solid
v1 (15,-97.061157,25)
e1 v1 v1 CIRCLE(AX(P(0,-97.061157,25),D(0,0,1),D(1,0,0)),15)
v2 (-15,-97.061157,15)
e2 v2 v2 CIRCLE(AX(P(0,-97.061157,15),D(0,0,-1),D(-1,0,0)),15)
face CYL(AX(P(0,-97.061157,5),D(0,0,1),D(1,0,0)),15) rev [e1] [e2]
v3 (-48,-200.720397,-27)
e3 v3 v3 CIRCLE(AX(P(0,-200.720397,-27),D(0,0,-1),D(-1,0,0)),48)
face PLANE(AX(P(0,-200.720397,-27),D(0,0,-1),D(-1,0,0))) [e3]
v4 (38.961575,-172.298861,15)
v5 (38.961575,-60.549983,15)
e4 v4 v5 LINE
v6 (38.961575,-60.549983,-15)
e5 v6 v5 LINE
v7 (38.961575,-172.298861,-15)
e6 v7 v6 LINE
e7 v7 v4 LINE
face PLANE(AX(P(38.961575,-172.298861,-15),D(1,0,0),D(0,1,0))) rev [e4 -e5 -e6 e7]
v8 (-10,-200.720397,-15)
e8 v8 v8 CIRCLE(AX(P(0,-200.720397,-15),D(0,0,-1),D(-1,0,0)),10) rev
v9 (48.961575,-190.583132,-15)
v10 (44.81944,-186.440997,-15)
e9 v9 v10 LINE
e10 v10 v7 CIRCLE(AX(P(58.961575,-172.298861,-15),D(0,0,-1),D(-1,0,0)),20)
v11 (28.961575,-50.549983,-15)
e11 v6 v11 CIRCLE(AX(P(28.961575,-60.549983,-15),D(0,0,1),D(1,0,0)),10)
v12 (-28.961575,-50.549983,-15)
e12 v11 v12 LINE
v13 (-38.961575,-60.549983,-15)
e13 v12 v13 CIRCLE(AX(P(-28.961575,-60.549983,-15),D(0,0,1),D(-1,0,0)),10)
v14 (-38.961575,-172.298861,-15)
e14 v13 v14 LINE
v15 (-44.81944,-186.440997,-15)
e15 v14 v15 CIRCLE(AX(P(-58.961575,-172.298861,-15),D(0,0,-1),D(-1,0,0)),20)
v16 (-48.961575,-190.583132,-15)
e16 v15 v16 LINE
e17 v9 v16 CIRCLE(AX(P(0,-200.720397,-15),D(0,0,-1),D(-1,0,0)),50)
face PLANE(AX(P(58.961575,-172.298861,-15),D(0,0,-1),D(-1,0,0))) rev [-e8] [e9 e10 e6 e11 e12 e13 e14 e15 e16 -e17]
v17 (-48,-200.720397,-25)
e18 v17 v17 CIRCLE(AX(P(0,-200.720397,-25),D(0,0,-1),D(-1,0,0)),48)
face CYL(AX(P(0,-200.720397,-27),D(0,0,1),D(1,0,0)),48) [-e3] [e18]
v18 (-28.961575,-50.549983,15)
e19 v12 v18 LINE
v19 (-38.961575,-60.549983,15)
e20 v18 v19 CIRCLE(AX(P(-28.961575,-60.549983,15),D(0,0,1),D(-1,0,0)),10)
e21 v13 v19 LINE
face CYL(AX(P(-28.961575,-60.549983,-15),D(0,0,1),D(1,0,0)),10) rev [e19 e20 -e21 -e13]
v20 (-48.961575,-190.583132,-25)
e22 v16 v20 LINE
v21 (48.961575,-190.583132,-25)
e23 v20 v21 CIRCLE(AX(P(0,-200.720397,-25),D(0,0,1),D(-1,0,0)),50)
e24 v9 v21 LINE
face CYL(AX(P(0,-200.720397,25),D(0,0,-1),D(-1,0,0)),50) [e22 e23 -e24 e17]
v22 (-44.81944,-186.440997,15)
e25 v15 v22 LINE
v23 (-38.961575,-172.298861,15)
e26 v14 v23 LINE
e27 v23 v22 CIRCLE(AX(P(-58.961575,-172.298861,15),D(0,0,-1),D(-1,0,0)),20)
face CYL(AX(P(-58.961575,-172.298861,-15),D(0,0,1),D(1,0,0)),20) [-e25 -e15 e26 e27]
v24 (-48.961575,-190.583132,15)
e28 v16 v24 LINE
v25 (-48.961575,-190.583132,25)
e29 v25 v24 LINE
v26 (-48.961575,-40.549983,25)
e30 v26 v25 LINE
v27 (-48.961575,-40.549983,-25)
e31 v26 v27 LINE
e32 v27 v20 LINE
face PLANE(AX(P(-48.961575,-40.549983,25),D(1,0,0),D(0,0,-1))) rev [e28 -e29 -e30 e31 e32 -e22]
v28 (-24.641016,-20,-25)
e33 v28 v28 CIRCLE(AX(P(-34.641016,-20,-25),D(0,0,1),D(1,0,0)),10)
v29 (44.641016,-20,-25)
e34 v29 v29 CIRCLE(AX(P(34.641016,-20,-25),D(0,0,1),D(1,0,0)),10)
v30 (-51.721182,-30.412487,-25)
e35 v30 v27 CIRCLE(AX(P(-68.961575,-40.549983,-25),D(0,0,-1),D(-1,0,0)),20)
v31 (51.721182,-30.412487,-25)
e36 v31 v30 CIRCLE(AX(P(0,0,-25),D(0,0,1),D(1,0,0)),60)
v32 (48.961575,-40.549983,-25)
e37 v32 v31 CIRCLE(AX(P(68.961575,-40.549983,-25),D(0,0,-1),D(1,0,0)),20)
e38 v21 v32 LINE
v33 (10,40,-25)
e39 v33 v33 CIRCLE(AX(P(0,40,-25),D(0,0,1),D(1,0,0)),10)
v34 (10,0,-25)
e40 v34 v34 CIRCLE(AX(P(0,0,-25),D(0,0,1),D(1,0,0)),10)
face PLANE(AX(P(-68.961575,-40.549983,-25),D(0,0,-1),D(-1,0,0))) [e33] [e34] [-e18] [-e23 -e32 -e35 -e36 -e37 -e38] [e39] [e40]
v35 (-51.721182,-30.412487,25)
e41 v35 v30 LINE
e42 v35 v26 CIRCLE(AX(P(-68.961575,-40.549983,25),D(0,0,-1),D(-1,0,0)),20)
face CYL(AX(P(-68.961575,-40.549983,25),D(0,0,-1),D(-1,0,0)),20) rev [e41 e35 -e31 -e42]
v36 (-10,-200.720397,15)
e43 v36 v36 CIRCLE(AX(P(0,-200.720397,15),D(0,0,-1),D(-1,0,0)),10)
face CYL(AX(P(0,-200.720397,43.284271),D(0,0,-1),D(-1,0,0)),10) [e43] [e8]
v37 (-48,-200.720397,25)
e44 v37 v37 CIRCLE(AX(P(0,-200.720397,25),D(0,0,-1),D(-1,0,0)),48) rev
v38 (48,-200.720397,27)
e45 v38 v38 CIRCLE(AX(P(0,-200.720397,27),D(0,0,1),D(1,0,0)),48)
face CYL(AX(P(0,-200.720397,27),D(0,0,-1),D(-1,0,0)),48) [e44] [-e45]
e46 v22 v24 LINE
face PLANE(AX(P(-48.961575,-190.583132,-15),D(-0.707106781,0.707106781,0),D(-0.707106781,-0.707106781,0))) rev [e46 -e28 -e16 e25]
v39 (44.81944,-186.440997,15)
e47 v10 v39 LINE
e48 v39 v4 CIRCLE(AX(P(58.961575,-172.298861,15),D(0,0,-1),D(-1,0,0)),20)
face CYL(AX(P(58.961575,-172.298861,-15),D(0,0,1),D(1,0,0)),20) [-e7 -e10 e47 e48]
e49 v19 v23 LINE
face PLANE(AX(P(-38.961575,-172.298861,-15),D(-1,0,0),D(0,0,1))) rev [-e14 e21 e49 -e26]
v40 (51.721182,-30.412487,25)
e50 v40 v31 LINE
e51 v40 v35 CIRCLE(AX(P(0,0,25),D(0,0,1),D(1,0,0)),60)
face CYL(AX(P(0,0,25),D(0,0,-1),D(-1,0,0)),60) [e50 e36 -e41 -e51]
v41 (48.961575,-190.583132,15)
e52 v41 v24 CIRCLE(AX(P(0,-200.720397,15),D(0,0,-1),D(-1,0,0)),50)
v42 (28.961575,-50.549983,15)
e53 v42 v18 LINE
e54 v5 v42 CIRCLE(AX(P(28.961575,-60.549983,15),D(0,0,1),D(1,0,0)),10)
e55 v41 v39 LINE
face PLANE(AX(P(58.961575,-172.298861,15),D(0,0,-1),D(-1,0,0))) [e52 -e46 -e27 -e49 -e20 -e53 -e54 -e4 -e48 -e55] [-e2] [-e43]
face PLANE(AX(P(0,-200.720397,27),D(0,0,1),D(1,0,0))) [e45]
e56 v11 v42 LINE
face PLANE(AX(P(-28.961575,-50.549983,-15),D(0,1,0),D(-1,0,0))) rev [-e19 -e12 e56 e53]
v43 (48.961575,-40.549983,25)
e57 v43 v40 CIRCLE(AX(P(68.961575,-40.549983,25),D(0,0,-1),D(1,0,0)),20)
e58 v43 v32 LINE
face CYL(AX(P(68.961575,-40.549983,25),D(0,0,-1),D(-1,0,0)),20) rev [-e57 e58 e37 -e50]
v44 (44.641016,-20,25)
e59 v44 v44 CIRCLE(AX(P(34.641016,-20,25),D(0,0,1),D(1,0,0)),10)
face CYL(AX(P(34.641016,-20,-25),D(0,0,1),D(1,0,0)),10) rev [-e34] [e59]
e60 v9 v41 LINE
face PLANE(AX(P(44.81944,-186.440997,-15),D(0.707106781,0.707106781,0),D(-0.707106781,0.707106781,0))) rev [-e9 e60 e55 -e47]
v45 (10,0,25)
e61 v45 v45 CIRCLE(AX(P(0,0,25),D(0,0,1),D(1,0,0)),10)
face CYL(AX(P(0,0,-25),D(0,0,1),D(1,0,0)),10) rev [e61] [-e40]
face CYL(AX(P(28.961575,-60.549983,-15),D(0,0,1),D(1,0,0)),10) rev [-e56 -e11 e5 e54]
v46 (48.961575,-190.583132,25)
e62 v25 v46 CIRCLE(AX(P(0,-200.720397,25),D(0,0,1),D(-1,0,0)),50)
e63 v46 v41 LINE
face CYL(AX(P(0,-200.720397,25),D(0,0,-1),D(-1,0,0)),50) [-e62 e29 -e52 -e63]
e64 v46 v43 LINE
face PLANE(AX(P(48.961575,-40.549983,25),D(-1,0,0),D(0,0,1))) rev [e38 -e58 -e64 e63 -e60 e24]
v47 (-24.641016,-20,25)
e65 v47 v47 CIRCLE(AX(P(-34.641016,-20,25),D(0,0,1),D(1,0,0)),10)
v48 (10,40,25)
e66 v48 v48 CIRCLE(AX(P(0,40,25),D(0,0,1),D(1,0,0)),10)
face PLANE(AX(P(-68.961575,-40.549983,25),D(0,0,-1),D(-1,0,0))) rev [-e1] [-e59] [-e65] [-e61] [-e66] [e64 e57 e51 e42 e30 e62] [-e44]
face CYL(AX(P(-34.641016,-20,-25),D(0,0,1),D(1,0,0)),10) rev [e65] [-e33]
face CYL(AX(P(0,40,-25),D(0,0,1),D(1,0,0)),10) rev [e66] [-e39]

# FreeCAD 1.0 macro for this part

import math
import FreeCAD as App
import Part
import Sketcher

V = App.Vector
Q = App.Units.Quantity

doc = App.newDocument("Part")
body = doc.addObject("PartDesign::Body", "Body")

sketch1 = body.newObject("Sketcher::SketchObject", "Sketch")
sketch1.AttachmentSupport = (doc.getObject("XY_Plane"), [""])
sketch1.MapMode = "FlatFace"
sketch1.addGeometry([
    Part.LineSegment(V(49, -191, 0), V(49, -41, 0)),
    Part.ArcOfCircle(Part.Circle(V(69, -41, 0), V(0, 0, 1), 20), math.radians(150), math.radians(180)),
    Part.ArcOfCircle(Part.Circle(V(0, 0, 0), V(0, 0, 1), 60), math.radians(-30), math.radians(210)),
    Part.ArcOfCircle(Part.Circle(V(-69, -41, 0), V(0, 0, 1), 20), math.radians(0), math.radians(30)),
    Part.LineSegment(V(-49, -41, 0), V(-49, -191, 0)),
    Part.ArcOfCircle(Part.Circle(V(0, -201, 0), V(0, 0, 1), 50), math.radians(168), math.radians(372)),
], False)
sketch1.addConstraint([
    Sketcher.Constraint("Tangent", 0, 2, 1, 2),
    Sketcher.Constraint("Tangent", 1, 1, 2, 1),
    Sketcher.Constraint("Tangent", 2, 2, 3, 2),
    Sketcher.Constraint("Tangent", 3, 1, 4, 1),
    Sketcher.Constraint("Coincident", 4, 2, 5, 1),
    Sketcher.Constraint("Coincident", 5, 2, 0, 1),
    Sketcher.Constraint("Vertical", 0),
    Sketcher.Constraint("Vertical", 4),
    Sketcher.Constraint("Coincident", 2, 3, -1, 1),
    Sketcher.Constraint("Equal", 1, 3),
    Sketcher.Constraint("Symmetric", 4, 2, 5, 2, -2),
    Sketcher.Constraint("Radius", 1, Q("20 mm")),
    Sketcher.Constraint("Radius", 2, Q("60 mm")),
    Sketcher.Constraint("Radius", 5, Q("50 mm")),
    Sketcher.Constraint("DistanceY", 0, 1, 0, 2, Q("150.033149 mm")),
    Sketcher.Constraint("DistanceX", -1, 1, 1, 1, Q("51.721182 mm")),
])
pad1 = body.newObject("PartDesign::Pad", "Pad")
pad1.Profile = sketch1
pad1.Length = 50
pad1.Midplane = True

sketch2 = body.newObject("Sketcher::SketchObject", "Sketch001")
sketch2.AttachmentSupport = (doc.getObject("XY_Plane"), [""])
sketch2.MapMode = "FlatFace"
sketch2.addGeometry([
    Part.LineSegment(V(-45, -186, 0), V(-49, -191, 0)),
    Part.LineSegment(V(-49, -191, 0), V(-95, -249, 0)),
    Part.LineSegment(V(-95, -249, 0), V(0, -291, 0)),
    Part.LineSegment(V(0, -291, 0), V(85, -249, 0)),
    Part.LineSegment(V(85, -249, 0), V(49, -191, 0)),
    Part.LineSegment(V(49, -191, 0), V(45, -186, 0)),
    Part.ArcOfCircle(Part.Circle(V(59, -172, 0), V(0, 0, 1), 20), math.radians(180), math.radians(225)),
    Part.LineSegment(V(39, -172, 0), V(39, -61, 0)),
    Part.ArcOfCircle(Part.Circle(V(29, -61, 0), V(0, 0, 1), 10), math.radians(0), math.radians(90)),
    Part.LineSegment(V(29, -51, 0), V(-29, -51, 0)),
    Part.ArcOfCircle(Part.Circle(V(-29, -61, 0), V(0, 0, 1), 10), math.radians(90), math.radians(180)),
    Part.LineSegment(V(-39, -61, 0), V(-39, -172, 0)),
    Part.ArcOfCircle(Part.Circle(V(-59, -172, 0), V(0, 0, 1), 20), math.radians(-45), math.radians(0)),
], False)
sketch2.addConstraint([
    Sketcher.Constraint("Coincident", 0, 2, 1, 1),
    Sketcher.Constraint("Coincident", 1, 2, 2, 1),
    Sketcher.Constraint("Coincident", 2, 2, 3, 1),
    Sketcher.Constraint("Coincident", 3, 2, 4, 1),
    Sketcher.Constraint("Coincident", 4, 2, 5, 1),
    Sketcher.Constraint("Tangent", 5, 2, 6, 2),
    Sketcher.Constraint("Tangent", 6, 1, 7, 1),
    Sketcher.Constraint("Tangent", 7, 2, 8, 1),
    Sketcher.Constraint("Tangent", 8, 2, 9, 1),
    Sketcher.Constraint("Tangent", 9, 2, 10, 1),
    Sketcher.Constraint("Tangent", 10, 2, 11, 1),
    Sketcher.Constraint("Tangent", 11, 2, 12, 2),
    Sketcher.Constraint("Tangent", 12, 1, 0, 1),
    Sketcher.Constraint("Vertical", 7),
    Sketcher.Constraint("Horizontal", 9),
    Sketcher.Constraint("Vertical", 11),
    Sketcher.Constraint("Equal", 8, 10),
    Sketcher.Constraint("Equal", 6, 12),
    Sketcher.Constraint("Symmetric", 6, 3, 12, 3, -2),
    Sketcher.Constraint("Symmetric", 0, 2, 4, 2, -2),
    Sketcher.Constraint("PointOnObject", 2, 2, -2),
    Sketcher.Constraint("Perpendicular", 0, 5),
    Sketcher.Constraint("Horizontal", 1, 2, 3, 2),
    Sketcher.Constraint("Radius", 6, Q("20 mm")),
    Sketcher.Constraint("Radius", 8, Q("10 mm")),
    Sketcher.Constraint("DistanceX", 12, 3, 0, 2, Q("10 mm")),
    Sketcher.Constraint("DistanceX", 9, 2, 9, 1, Q("57.923151 mm")),
    Sketcher.Constraint("DistanceY", 7, 1, 7, 2, Q("111.748878 mm")),
    Sketcher.Constraint("DistanceX", 1, 2, -1, 1, Q("95.2339 mm")),
    Sketcher.Constraint("Distance", 2, Q("104.20705 mm")),
    Sketcher.Constraint("Distance", 3, Q("94.830289 mm")),
    Sketcher.Constraint("DistanceY", 6, 3, -1, 1, Q("172.298861 mm")),
    Sketcher.Constraint("DistanceY", 2, 2, -1, 1, Q("290.85155 mm")),
])
pocket1 = body.newObject("PartDesign::Pocket", "Pocket")
pocket1.Profile = sketch2
pocket1.Length = 30
pocket1.Midplane = True

sketch3 = body.newObject("Sketcher::SketchObject", "Sketch002")
sketch3.AttachmentSupport = (doc.getObject("XY_Plane"), [""])
sketch3.MapMode = "FlatFace"
sketch3.AttachmentOffset = App.Placement(V(0, 0, 25), App.Rotation())
sketch3.addGeometry([
    Part.Circle(V(0, 0, 0), V(0, 0, 1), 10),
    Part.Circle(V(0, 40, 0), V(0, 0, 1), 10),
    Part.Circle(V(35, -20, 0), V(0, 0, 1), 10),
    Part.Circle(V(-35, -20, 0), V(0, 0, 1), 10),
], False)
sketch3.addConstraint([
    Sketcher.Constraint("Coincident", 0, 3, -1, 1),
    Sketcher.Constraint("Equal", 0, 1),
    Sketcher.Constraint("Equal", 1, 2),
    Sketcher.Constraint("Equal", 2, 3),
    Sketcher.Constraint("Symmetric", 2, 3, 3, 3, -2),
    Sketcher.Constraint("PointOnObject", 1, 3, -2),
    Sketcher.Constraint("Diameter", 0, Q("20 mm")),
    Sketcher.Constraint("DistanceY", -1, 1, 1, 3, Q("40 mm")),
    Sketcher.Constraint("DistanceY", 2, 3, -1, 1, Q("20 mm")),
    Sketcher.Constraint("DistanceX", -1, 1, 2, 3, Q("34.641016 mm")),
])
pocket2 = body.newObject("PartDesign::Pocket", "Pocket001")
pocket2.Profile = sketch3
pocket2.Type = "ThroughAll"

sketch4 = body.newObject("Sketcher::SketchObject", "Sketch003")
sketch4.AttachmentSupport = (doc.getObject("XY_Plane"), [""])
sketch4.MapMode = "FlatFace"
sketch4.AttachmentOffset = App.Placement(V(0, 0, 25), App.Rotation())
sketch4.addGeometry(Part.Circle(V(0, -201, 0), V(0, 0, 1), 48), False)
sketch4.addConstraint([
    Sketcher.Constraint("PointOnObject", 0, 3, -2),
    Sketcher.Constraint("Diameter", 0, Q("96 mm")),
    Sketcher.Constraint("DistanceY", 0, 3, -1, 1, Q("200.720397 mm")),
])
pad2 = body.newObject("PartDesign::Pad", "Pad001")
pad2.Profile = sketch4
pad2.Length = 2

sketch5 = body.newObject("Sketcher::SketchObject", "Sketch004")
sketch5.AttachmentSupport = (doc.getObject("XY_Plane"), [""])
sketch5.MapMode = "FlatFace"
sketch5.AttachmentOffset = App.Placement(V(0, 0, -27), App.Rotation())
sketch5.addGeometry(Part.Circle(V(0, -201, 0), V(0, 0, 1), 48), False)
sketch5.addConstraint([
    Sketcher.Constraint("PointOnObject", 0, 3, -2),
    Sketcher.Constraint("Diameter", 0, Q("96 mm")),
    Sketcher.Constraint("DistanceY", 0, 3, -1, 1, Q("200.720397 mm")),
])
pad3 = body.newObject("PartDesign::Pad", "Pad002")
pad3.Profile = sketch5
pad3.Length = 2

sketch6 = body.newObject("Sketcher::SketchObject", "Sketch005")
sketch6.AttachmentSupport = (doc.getObject("XY_Plane"), [""])
sketch6.MapMode = "FlatFace"
sketch6.AttachmentOffset = App.Placement(V(0, 0, 25), App.Rotation())
sketch6.addGeometry(Part.Circle(V(0, -97, 0), V(0, 0, 1), 15), False)
sketch6.addConstraint([
    Sketcher.Constraint("PointOnObject", 0, 3, -2),
    Sketcher.Constraint("Diameter", 0, Q("30 mm")),
    Sketcher.Constraint("DistanceY", 0, 3, -1, 1, Q("97.061157 mm")),
])
pocket3 = body.newObject("PartDesign::Pocket", "Pocket002")
pocket3.Profile = sketch6
pocket3.Length = 20

sketch7 = body.newObject("Sketcher::SketchObject", "Sketch006")
sketch7.AttachmentSupport = (doc.getObject("XY_Plane"), [""])
sketch7.MapMode = "FlatFace"
sketch7.AttachmentOffset = App.Placement(V(0, 0, -15), App.Rotation())
sketch7.addGeometry(Part.Circle(V(0, -201, 0), V(0, 0, 1), 10), False)
sketch7.addConstraint([
    Sketcher.Constraint("PointOnObject", 0, 3, -2),
    Sketcher.Constraint("Diameter", 0, Q("20 mm")),
    Sketcher.Constraint("DistanceY", 0, 3, -1, 1, Q("200.720397 mm")),
])
pad4 = body.newObject("PartDesign::Pad", "Pad003")
pad4.Profile = sketch7
pad4.Length = 30

doc.recompute()
